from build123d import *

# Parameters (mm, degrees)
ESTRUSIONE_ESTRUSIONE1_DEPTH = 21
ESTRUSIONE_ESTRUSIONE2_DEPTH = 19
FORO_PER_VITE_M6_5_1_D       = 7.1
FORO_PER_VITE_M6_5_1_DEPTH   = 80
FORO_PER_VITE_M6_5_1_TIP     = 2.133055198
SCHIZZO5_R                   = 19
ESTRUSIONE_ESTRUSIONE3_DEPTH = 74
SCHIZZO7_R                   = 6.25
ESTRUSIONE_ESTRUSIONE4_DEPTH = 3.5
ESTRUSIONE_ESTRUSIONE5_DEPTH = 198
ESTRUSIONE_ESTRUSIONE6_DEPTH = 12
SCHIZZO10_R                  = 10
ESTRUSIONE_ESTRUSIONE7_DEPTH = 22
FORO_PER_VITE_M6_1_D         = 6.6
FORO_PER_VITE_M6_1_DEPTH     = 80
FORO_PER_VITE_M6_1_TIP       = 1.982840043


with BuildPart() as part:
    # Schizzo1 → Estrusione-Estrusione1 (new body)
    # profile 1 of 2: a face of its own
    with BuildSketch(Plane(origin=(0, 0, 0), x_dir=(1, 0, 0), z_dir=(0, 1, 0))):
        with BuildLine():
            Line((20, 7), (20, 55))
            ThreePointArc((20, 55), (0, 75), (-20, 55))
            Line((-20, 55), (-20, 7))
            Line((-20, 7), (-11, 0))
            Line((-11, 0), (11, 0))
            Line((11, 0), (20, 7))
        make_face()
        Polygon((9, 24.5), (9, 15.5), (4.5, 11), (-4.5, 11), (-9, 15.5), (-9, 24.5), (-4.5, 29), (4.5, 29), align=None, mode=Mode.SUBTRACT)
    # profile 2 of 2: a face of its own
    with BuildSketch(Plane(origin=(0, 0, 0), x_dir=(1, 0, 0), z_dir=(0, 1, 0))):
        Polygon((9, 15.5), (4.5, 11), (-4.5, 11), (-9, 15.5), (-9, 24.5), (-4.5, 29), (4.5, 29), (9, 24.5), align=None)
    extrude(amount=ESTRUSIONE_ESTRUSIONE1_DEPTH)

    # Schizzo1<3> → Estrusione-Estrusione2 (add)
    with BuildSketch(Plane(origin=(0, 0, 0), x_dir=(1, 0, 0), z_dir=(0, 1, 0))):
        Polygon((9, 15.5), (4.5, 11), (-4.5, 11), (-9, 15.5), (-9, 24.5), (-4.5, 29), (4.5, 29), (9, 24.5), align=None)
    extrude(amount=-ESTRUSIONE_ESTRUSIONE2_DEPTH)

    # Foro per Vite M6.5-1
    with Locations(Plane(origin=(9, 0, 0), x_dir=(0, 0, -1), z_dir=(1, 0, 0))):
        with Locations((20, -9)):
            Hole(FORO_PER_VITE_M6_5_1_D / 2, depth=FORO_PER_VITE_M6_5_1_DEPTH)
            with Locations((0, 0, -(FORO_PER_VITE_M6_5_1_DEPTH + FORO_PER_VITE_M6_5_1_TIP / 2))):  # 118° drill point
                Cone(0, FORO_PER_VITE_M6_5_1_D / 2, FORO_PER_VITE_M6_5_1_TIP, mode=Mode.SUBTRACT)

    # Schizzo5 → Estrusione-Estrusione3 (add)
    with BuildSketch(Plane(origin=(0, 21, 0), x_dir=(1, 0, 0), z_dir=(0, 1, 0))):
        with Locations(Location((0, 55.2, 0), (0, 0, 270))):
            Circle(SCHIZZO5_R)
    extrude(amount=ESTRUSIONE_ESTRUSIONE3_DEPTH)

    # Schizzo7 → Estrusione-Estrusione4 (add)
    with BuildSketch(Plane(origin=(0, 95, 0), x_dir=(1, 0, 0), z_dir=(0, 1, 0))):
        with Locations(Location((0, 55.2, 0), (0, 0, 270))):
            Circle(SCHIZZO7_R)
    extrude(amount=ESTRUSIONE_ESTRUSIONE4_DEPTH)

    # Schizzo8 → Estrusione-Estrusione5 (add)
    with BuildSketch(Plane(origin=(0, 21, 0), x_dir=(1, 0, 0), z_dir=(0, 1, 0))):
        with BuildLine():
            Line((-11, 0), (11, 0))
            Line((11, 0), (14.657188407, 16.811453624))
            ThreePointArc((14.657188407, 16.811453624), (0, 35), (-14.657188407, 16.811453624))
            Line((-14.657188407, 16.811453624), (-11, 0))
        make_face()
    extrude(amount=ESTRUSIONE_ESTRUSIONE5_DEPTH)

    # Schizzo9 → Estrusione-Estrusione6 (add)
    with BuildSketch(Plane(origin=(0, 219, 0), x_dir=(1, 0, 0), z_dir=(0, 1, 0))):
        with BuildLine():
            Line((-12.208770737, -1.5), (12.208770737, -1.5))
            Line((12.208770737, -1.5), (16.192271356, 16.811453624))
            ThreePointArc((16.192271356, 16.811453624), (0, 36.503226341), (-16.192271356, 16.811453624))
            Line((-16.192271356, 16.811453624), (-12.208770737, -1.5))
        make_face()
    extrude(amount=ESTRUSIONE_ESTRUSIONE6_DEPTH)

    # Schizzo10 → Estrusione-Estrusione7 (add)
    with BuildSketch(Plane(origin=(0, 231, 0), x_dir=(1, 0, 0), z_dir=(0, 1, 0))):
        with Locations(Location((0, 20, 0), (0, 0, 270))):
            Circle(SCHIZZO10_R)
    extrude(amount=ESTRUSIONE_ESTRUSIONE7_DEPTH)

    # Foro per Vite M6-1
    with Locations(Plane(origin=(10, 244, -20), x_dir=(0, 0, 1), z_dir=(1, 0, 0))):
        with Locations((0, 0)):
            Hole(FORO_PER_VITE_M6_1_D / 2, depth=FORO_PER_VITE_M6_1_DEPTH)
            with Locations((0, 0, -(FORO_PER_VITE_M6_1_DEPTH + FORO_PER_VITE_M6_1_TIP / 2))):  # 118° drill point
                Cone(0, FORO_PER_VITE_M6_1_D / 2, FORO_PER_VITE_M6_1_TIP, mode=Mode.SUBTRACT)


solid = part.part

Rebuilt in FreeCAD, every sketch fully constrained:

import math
import FreeCAD as App
import Part
import Sketcher

V = App.Vector

doc = App.newDocument("Part")
body = doc.addObject("PartDesign::Body", "Body")

sketch1 = body.newObject("Sketcher::SketchObject", "Sketch")
sketch1.AttachmentSupport = (doc.getObject("XZ_Plane"), [""])
sketch1.MapMode = "FlatFace"
sketch1.addGeometry(Part.LineSegment(V(20, -7, 0), V(20, -55, 0)), False)
sketch1.addGeometry(Part.ArcOfCircle(Part.Circle(V(0, -55, 0), V(0, 0, 1), 20), math.radians(180), math.radians(360)), False)
sketch1.addGeometry(Part.LineSegment(V(-20, -55, 0), V(-20, -7, 0)), False)
sketch1.addGeometry(Part.LineSegment(V(-20, -7, 0), V(-11, 0, 0)), False)
sketch1.addGeometry(Part.LineSegment(V(-11, 0, 0), V(11, 0, 0)), False)
sketch1.addGeometry(Part.LineSegment(V(11, 0, 0), V(20, -7, 0)), False)
sketch1.addConstraint(Sketcher.Constraint("Tangent", 0, 2, 1, 2))
sketch1.addConstraint(Sketcher.Constraint("Tangent", 1, 1, 2, 1))
sketch1.addConstraint(Sketcher.Constraint("Coincident", 2, 2, 3, 1))
sketch1.addConstraint(Sketcher.Constraint("Coincident", 3, 2, 4, 1))
sketch1.addConstraint(Sketcher.Constraint("Coincident", 4, 2, 5, 1))
sketch1.addConstraint(Sketcher.Constraint("Coincident", 5, 2, 0, 1))
sketch1.addConstraint(Sketcher.Constraint("Vertical", 0))
sketch1.addConstraint(Sketcher.Constraint("Vertical", 2))
sketch1.addConstraint(Sketcher.Constraint("Horizontal", 4))
sketch1.addConstraint(Sketcher.Constraint("Symmetric", 3, 2, 4, 2, -1, 1))
sketch1.addConstraint(Sketcher.Constraint("Symmetric", 2, 2, 5, 2, -2))
sketch1.addConstraint(Sketcher.Constraint("Radius", 1, 20.0))
sketch1.addConstraint(Sketcher.Constraint("DistanceX", 4, 1, 4, 2, 22.0))
sketch1.addConstraint(Sketcher.Constraint("DistanceY", 0, 2, 0, 1, 48.0))
sketch1.addConstraint(Sketcher.Constraint("DistanceY", 1, 3, -1, 1, 55.0))
pad1 = body.newObject("PartDesign::Pad", "Pad")
pad1.Profile = sketch1
pad1.Length = 21
pad1.Reversed = True

sketch2 = body.newObject("Sketcher::SketchObject", "Sketch001")
sketch2.AttachmentSupport = (doc.getObject("XZ_Plane"), [""])
sketch2.MapMode = "FlatFace"
sketch2.addGeometry(Part.LineSegment(V(4, -11, 0), V(9, -16, 0)), False)
sketch2.addGeometry(Part.LineSegment(V(9, -16, 0), V(9, -24, 0)), False)
sketch2.addGeometry(Part.LineSegment(V(9, -24, 0), V(4, -29, 0)), False)
sketch2.addGeometry(Part.LineSegment(V(4, -29, 0), V(-4, -29, 0)), False)
sketch2.addGeometry(Part.LineSegment(V(-4, -29, 0), V(-9, -24, 0)), False)
sketch2.addGeometry(Part.LineSegment(V(-9, -24, 0), V(-9, -16, 0)), False)
sketch2.addGeometry(Part.LineSegment(V(-9, -16, 0), V(-4, -11, 0)), False)
sketch2.addGeometry(Part.LineSegment(V(-4, -11, 0), V(4, -11, 0)), False)
sketch2.addConstraint(Sketcher.Constraint("Coincident", 0, 2, 1, 1))
sketch2.addConstraint(Sketcher.Constraint("Coincident", 1, 2, 2, 1))
sketch2.addConstraint(Sketcher.Constraint("Coincident", 2, 2, 3, 1))
sketch2.addConstraint(Sketcher.Constraint("Coincident", 3, 2, 4, 1))
sketch2.addConstraint(Sketcher.Constraint("Coincident", 4, 2, 5, 1))
sketch2.addConstraint(Sketcher.Constraint("Coincident", 5, 2, 6, 1))
sketch2.addConstraint(Sketcher.Constraint("Coincident", 6, 2, 7, 1))
sketch2.addConstraint(Sketcher.Constraint("Coincident", 7, 2, 0, 1))
sketch2.addConstraint(Sketcher.Constraint("Vertical", 1))
sketch2.addConstraint(Sketcher.Constraint("Horizontal", 3))
sketch2.addConstraint(Sketcher.Constraint("Vertical", 5))
sketch2.addConstraint(Sketcher.Constraint("Horizontal", 7))
sketch2.addConstraint(Sketcher.Constraint("Symmetric", 1, 2, 4, 2, -2))
sketch2.addConstraint(Sketcher.Constraint("Perpendicular", 0, 2))
sketch2.addConstraint(Sketcher.Constraint("Perpendicular", 2, 4))
sketch2.addConstraint(Sketcher.Constraint("Perpendicular", 4, 6))
sketch2.addConstraint(Sketcher.Constraint("Horizontal", 0, 2, 5, 2))
sketch2.addConstraint(Sketcher.Constraint("Vertical", 3, 2, 6, 2))
sketch2.addConstraint(Sketcher.Constraint("Vertical", 2, 2, 7, 2))
sketch2.addConstraint(Sketcher.Constraint("Equal", 7, 1))
sketch2.addConstraint(Sketcher.Constraint("DistanceX", 3, 2, 3, 1, 9.0))
sketch2.addConstraint(Sketcher.Constraint("DistanceX", -1, 1, 0, 2, 9.0))
sketch2.addConstraint(Sketcher.Constraint("DistanceY", 2, 2, -1, 1, 29.0))
pad2 = body.newObject("PartDesign::Pad", "Pad001")
pad2.Profile = sketch2
pad2.Length = 19

sketch3 = body.newObject("Sketcher::SketchObject", "Sketch002")
sketch3.AttachmentSupport = (doc.getObject("YZ_Plane"), [""])
sketch3.MapMode = "FlatFace"
sketch3.AttachmentOffset = App.Placement(V(0, 0, 9), App.Rotation())
sketch3.addGeometry(Part.Circle(V(-9, -20, 0), V(0, 0, 1), 3.5), False)
sketch3.addConstraint(Sketcher.Constraint("Diameter", 0, 7.1))
sketch3.addConstraint(Sketcher.Constraint("DistanceX", 0, 3, -1, 1, 9.0))
sketch3.addConstraint(Sketcher.Constraint("DistanceY", 0, 3, -1, 1, 20.0))
doc.recompute()
hole = body.newObject("PartDesign::Hole", "Hole")
hole.Profile = sketch3
hole.ThreadType = "None"
hole.Diameter = 7.1
hole.DepthType = "Dimension"
hole.Depth = 80
hole.DrillPoint = "Angled"
hole.DrillPointAngle = 118

sketch4 = body.newObject("Sketcher::SketchObject", "Sketch003")
sketch4.AttachmentSupport = (doc.getObject("XZ_Plane"), [""])
sketch4.MapMode = "FlatFace"
sketch4.AttachmentOffset = App.Placement(V(0, 0, -21), App.Rotation())
sketch4.addGeometry(Part.Circle(V(0, -55, 0), V(0, 0, 1), 19), False)
sketch4.addConstraint(Sketcher.Constraint("PointOnObject", 0, 3, -2))
sketch4.addConstraint(Sketcher.Constraint("Diameter", 0, 38.0))
sketch4.addConstraint(Sketcher.Constraint("DistanceY", 0, 3, -1, 1, 55.2))
pad3 = body.newObject("PartDesign::Pad", "Pad002")
pad3.Profile = sketch4
pad3.Length = 74
pad3.Reversed = True

sketch5 = body.newObject("Sketcher::SketchObject", "Sketch004")
sketch5.AttachmentSupport = (doc.getObject("XZ_Plane"), [""])
sketch5.MapMode = "FlatFace"
sketch5.AttachmentOffset = App.Placement(V(0, 0, -95), App.Rotation())
sketch5.addGeometry(Part.Circle(V(0, -55, 0), V(0, 0, 1), 6), False)
sketch5.addConstraint(Sketcher.Constraint("PointOnObject", 0, 3, -2))
sketch5.addConstraint(Sketcher.Constraint("Diameter", 0, 12.5))
sketch5.addConstraint(Sketcher.Constraint("DistanceY", 0, 3, -1, 1, 55.2))
pad4 = body.newObject("PartDesign::Pad", "Pad003")
pad4.Profile = sketch5
pad4.Length = 3.5
pad4.Reversed = True

sketch6 = body.newObject("Sketcher::SketchObject", "Sketch005")
sketch6.AttachmentSupport = (doc.getObject("XZ_Plane"), [""])
sketch6.MapMode = "FlatFace"
sketch6.AttachmentOffset = App.Placement(V(0, 0, -21), App.Rotation())
sketch6.addGeometry(Part.LineSegment(V(-11, 0, 0), V(11, 0, 0)), False)
sketch6.addGeometry(Part.LineSegment(V(11, 0, 0), V(15, -17, 0)), False)
sketch6.addGeometry(Part.ArcOfCircle(Part.Circle(V(0, -20, 0), V(0, 0, 1), 15), math.radians(168), math.radians(372)), False)
sketch6.addGeometry(Part.LineSegment(V(-15, -17, 0), V(-11, 0, 0)), False)
sketch6.addConstraint(Sketcher.Constraint("Coincident", 0, 2, 1, 1))
sketch6.addConstraint(Sketcher.Constraint("Tangent", 1, 2, 2, 2))
sketch6.addConstraint(Sketcher.Constraint("Tangent", 2, 1, 3, 1))
sketch6.addConstraint(Sketcher.Constraint("Coincident", 3, 2, 0, 1))
sketch6.addConstraint(Sketcher.Constraint("Horizontal", 0))
sketch6.addConstraint(Sketcher.Constraint("Symmetric", 0, 2, 3, 2, -1, 1))
sketch6.addConstraint(Sketcher.Constraint("PointOnObject", 2, 3, -2))
sketch6.addConstraint(Sketcher.Constraint("Radius", 2, 15.0))
sketch6.addConstraint(Sketcher.Constraint("DistanceX", 0, 1, 0, 2, 22.0))
sketch6.addConstraint(Sketcher.Constraint("DistanceY", 2, 3, -1, 1, 20.0))
pad5 = body.newObject("PartDesign::Pad", "Pad004")
pad5.Profile = sketch6
pad5.Length = 198
pad5.Reversed = True

sketch7 = body.newObject("Sketcher::SketchObject", "Sketch006")
sketch7.AttachmentSupport = (doc.getObject("XZ_Plane"), [""])
sketch7.MapMode = "FlatFace"
sketch7.AttachmentOffset = App.Placement(V(0, 0, -219), App.Rotation())
sketch7.addGeometry(Part.LineSegment(V(-12, 2, 0), V(12, 2, 0)), False)
sketch7.addGeometry(Part.LineSegment(V(12, 2, 0), V(16, -17, 0)), False)
sketch7.addGeometry(Part.ArcOfCircle(Part.Circle(V(0, -20, 0), V(0, 0, 1), 17), math.radians(169), math.radians(371)), False)
sketch7.addGeometry(Part.LineSegment(V(-16, -17, 0), V(-12, 2, 0)), False)
sketch7.addConstraint(Sketcher.Constraint("Coincident", 0, 2, 1, 1))
sketch7.addConstraint(Sketcher.Constraint("Coincident", 1, 2, 2, 2))
sketch7.addConstraint(Sketcher.Constraint("Coincident", 2, 1, 3, 1))
sketch7.addConstraint(Sketcher.Constraint("Coincident", 3, 2, 0, 1))
sketch7.addConstraint(Sketcher.Constraint("Horizontal", 0))
sketch7.addConstraint(Sketcher.Constraint("Symmetric", 1, 2, 2, 1, -2))
sketch7.addConstraint(Sketcher.Constraint("Equal", 1, 3))
sketch7.addConstraint(Sketcher.Constraint("DistanceY", 2, 3, -1, 1, 20.0))
sketch7.addConstraint(Sketcher.Constraint("DistanceY", -1, 1, 0, 2, 1.5))
sketch7.addConstraint(Sketcher.Constraint("Radius", 2, 16.503226))
sketch7.addConstraint(Sketcher.Constraint("DistanceX", 0, 1, 0, 2, 24.417541))
sketch7.addConstraint(Sketcher.Constraint("DistanceX", 0, 2, 1, 2, 3.983501))
pad6 = body.newObject("PartDesign::Pad", "Pad005")
pad6.Profile = sketch7
pad6.Length = 12
pad6.Reversed = True

sketch8 = body.newObject("Sketcher::SketchObject", "Sketch007")
sketch8.AttachmentSupport = (doc.getObject("XZ_Plane"), [""])
sketch8.MapMode = "FlatFace"
sketch8.AttachmentOffset = App.Placement(V(0, 0, -231), App.Rotation())
sketch8.addGeometry(Part.Circle(V(0, -20, 0), V(0, 0, 1), 10), False)
sketch8.addConstraint(Sketcher.Constraint("PointOnObject", 0, 3, -2))
sketch8.addConstraint(Sketcher.Constraint("Diameter", 0, 20.0))
sketch8.addConstraint(Sketcher.Constraint("DistanceY", 0, 3, -1, 1, 20.0))
pad7 = body.newObject("PartDesign::Pad", "Pad006")
pad7.Profile = sketch8
pad7.Length = 22
pad7.Reversed = True

sketch9 = body.newObject("Sketcher::SketchObject", "Sketch008")
sketch9.AttachmentSupport = (doc.getObject("YZ_Plane"), [""])
sketch9.MapMode = "FlatFace"
sketch9.AttachmentOffset = App.Placement(V(0, 0, 10), App.Rotation())
sketch9.addGeometry(Part.Circle(V(244, -20, 0), V(0, 0, 1), 3.3), False)
sketch9.addConstraint(Sketcher.Constraint("Diameter", 0, 6.6))
sketch9.addConstraint(Sketcher.Constraint("DistanceX", -1, 1, 0, 3, 244.0))
sketch9.addConstraint(Sketcher.Constraint("DistanceY", 0, 3, -1, 1, 20.0))
doc.recompute()
hole2 = body.newObject("PartDesign::Hole", "Hole001")
hole2.Profile = sketch9
hole2.ThreadType = "None"
hole2.Diameter = 6.6
hole2.DepthType = "Dimension"
hole2.Depth = 80
hole2.DrillPoint = "Angled"
hole2.DrillPointAngle = 118

doc.recompute()
